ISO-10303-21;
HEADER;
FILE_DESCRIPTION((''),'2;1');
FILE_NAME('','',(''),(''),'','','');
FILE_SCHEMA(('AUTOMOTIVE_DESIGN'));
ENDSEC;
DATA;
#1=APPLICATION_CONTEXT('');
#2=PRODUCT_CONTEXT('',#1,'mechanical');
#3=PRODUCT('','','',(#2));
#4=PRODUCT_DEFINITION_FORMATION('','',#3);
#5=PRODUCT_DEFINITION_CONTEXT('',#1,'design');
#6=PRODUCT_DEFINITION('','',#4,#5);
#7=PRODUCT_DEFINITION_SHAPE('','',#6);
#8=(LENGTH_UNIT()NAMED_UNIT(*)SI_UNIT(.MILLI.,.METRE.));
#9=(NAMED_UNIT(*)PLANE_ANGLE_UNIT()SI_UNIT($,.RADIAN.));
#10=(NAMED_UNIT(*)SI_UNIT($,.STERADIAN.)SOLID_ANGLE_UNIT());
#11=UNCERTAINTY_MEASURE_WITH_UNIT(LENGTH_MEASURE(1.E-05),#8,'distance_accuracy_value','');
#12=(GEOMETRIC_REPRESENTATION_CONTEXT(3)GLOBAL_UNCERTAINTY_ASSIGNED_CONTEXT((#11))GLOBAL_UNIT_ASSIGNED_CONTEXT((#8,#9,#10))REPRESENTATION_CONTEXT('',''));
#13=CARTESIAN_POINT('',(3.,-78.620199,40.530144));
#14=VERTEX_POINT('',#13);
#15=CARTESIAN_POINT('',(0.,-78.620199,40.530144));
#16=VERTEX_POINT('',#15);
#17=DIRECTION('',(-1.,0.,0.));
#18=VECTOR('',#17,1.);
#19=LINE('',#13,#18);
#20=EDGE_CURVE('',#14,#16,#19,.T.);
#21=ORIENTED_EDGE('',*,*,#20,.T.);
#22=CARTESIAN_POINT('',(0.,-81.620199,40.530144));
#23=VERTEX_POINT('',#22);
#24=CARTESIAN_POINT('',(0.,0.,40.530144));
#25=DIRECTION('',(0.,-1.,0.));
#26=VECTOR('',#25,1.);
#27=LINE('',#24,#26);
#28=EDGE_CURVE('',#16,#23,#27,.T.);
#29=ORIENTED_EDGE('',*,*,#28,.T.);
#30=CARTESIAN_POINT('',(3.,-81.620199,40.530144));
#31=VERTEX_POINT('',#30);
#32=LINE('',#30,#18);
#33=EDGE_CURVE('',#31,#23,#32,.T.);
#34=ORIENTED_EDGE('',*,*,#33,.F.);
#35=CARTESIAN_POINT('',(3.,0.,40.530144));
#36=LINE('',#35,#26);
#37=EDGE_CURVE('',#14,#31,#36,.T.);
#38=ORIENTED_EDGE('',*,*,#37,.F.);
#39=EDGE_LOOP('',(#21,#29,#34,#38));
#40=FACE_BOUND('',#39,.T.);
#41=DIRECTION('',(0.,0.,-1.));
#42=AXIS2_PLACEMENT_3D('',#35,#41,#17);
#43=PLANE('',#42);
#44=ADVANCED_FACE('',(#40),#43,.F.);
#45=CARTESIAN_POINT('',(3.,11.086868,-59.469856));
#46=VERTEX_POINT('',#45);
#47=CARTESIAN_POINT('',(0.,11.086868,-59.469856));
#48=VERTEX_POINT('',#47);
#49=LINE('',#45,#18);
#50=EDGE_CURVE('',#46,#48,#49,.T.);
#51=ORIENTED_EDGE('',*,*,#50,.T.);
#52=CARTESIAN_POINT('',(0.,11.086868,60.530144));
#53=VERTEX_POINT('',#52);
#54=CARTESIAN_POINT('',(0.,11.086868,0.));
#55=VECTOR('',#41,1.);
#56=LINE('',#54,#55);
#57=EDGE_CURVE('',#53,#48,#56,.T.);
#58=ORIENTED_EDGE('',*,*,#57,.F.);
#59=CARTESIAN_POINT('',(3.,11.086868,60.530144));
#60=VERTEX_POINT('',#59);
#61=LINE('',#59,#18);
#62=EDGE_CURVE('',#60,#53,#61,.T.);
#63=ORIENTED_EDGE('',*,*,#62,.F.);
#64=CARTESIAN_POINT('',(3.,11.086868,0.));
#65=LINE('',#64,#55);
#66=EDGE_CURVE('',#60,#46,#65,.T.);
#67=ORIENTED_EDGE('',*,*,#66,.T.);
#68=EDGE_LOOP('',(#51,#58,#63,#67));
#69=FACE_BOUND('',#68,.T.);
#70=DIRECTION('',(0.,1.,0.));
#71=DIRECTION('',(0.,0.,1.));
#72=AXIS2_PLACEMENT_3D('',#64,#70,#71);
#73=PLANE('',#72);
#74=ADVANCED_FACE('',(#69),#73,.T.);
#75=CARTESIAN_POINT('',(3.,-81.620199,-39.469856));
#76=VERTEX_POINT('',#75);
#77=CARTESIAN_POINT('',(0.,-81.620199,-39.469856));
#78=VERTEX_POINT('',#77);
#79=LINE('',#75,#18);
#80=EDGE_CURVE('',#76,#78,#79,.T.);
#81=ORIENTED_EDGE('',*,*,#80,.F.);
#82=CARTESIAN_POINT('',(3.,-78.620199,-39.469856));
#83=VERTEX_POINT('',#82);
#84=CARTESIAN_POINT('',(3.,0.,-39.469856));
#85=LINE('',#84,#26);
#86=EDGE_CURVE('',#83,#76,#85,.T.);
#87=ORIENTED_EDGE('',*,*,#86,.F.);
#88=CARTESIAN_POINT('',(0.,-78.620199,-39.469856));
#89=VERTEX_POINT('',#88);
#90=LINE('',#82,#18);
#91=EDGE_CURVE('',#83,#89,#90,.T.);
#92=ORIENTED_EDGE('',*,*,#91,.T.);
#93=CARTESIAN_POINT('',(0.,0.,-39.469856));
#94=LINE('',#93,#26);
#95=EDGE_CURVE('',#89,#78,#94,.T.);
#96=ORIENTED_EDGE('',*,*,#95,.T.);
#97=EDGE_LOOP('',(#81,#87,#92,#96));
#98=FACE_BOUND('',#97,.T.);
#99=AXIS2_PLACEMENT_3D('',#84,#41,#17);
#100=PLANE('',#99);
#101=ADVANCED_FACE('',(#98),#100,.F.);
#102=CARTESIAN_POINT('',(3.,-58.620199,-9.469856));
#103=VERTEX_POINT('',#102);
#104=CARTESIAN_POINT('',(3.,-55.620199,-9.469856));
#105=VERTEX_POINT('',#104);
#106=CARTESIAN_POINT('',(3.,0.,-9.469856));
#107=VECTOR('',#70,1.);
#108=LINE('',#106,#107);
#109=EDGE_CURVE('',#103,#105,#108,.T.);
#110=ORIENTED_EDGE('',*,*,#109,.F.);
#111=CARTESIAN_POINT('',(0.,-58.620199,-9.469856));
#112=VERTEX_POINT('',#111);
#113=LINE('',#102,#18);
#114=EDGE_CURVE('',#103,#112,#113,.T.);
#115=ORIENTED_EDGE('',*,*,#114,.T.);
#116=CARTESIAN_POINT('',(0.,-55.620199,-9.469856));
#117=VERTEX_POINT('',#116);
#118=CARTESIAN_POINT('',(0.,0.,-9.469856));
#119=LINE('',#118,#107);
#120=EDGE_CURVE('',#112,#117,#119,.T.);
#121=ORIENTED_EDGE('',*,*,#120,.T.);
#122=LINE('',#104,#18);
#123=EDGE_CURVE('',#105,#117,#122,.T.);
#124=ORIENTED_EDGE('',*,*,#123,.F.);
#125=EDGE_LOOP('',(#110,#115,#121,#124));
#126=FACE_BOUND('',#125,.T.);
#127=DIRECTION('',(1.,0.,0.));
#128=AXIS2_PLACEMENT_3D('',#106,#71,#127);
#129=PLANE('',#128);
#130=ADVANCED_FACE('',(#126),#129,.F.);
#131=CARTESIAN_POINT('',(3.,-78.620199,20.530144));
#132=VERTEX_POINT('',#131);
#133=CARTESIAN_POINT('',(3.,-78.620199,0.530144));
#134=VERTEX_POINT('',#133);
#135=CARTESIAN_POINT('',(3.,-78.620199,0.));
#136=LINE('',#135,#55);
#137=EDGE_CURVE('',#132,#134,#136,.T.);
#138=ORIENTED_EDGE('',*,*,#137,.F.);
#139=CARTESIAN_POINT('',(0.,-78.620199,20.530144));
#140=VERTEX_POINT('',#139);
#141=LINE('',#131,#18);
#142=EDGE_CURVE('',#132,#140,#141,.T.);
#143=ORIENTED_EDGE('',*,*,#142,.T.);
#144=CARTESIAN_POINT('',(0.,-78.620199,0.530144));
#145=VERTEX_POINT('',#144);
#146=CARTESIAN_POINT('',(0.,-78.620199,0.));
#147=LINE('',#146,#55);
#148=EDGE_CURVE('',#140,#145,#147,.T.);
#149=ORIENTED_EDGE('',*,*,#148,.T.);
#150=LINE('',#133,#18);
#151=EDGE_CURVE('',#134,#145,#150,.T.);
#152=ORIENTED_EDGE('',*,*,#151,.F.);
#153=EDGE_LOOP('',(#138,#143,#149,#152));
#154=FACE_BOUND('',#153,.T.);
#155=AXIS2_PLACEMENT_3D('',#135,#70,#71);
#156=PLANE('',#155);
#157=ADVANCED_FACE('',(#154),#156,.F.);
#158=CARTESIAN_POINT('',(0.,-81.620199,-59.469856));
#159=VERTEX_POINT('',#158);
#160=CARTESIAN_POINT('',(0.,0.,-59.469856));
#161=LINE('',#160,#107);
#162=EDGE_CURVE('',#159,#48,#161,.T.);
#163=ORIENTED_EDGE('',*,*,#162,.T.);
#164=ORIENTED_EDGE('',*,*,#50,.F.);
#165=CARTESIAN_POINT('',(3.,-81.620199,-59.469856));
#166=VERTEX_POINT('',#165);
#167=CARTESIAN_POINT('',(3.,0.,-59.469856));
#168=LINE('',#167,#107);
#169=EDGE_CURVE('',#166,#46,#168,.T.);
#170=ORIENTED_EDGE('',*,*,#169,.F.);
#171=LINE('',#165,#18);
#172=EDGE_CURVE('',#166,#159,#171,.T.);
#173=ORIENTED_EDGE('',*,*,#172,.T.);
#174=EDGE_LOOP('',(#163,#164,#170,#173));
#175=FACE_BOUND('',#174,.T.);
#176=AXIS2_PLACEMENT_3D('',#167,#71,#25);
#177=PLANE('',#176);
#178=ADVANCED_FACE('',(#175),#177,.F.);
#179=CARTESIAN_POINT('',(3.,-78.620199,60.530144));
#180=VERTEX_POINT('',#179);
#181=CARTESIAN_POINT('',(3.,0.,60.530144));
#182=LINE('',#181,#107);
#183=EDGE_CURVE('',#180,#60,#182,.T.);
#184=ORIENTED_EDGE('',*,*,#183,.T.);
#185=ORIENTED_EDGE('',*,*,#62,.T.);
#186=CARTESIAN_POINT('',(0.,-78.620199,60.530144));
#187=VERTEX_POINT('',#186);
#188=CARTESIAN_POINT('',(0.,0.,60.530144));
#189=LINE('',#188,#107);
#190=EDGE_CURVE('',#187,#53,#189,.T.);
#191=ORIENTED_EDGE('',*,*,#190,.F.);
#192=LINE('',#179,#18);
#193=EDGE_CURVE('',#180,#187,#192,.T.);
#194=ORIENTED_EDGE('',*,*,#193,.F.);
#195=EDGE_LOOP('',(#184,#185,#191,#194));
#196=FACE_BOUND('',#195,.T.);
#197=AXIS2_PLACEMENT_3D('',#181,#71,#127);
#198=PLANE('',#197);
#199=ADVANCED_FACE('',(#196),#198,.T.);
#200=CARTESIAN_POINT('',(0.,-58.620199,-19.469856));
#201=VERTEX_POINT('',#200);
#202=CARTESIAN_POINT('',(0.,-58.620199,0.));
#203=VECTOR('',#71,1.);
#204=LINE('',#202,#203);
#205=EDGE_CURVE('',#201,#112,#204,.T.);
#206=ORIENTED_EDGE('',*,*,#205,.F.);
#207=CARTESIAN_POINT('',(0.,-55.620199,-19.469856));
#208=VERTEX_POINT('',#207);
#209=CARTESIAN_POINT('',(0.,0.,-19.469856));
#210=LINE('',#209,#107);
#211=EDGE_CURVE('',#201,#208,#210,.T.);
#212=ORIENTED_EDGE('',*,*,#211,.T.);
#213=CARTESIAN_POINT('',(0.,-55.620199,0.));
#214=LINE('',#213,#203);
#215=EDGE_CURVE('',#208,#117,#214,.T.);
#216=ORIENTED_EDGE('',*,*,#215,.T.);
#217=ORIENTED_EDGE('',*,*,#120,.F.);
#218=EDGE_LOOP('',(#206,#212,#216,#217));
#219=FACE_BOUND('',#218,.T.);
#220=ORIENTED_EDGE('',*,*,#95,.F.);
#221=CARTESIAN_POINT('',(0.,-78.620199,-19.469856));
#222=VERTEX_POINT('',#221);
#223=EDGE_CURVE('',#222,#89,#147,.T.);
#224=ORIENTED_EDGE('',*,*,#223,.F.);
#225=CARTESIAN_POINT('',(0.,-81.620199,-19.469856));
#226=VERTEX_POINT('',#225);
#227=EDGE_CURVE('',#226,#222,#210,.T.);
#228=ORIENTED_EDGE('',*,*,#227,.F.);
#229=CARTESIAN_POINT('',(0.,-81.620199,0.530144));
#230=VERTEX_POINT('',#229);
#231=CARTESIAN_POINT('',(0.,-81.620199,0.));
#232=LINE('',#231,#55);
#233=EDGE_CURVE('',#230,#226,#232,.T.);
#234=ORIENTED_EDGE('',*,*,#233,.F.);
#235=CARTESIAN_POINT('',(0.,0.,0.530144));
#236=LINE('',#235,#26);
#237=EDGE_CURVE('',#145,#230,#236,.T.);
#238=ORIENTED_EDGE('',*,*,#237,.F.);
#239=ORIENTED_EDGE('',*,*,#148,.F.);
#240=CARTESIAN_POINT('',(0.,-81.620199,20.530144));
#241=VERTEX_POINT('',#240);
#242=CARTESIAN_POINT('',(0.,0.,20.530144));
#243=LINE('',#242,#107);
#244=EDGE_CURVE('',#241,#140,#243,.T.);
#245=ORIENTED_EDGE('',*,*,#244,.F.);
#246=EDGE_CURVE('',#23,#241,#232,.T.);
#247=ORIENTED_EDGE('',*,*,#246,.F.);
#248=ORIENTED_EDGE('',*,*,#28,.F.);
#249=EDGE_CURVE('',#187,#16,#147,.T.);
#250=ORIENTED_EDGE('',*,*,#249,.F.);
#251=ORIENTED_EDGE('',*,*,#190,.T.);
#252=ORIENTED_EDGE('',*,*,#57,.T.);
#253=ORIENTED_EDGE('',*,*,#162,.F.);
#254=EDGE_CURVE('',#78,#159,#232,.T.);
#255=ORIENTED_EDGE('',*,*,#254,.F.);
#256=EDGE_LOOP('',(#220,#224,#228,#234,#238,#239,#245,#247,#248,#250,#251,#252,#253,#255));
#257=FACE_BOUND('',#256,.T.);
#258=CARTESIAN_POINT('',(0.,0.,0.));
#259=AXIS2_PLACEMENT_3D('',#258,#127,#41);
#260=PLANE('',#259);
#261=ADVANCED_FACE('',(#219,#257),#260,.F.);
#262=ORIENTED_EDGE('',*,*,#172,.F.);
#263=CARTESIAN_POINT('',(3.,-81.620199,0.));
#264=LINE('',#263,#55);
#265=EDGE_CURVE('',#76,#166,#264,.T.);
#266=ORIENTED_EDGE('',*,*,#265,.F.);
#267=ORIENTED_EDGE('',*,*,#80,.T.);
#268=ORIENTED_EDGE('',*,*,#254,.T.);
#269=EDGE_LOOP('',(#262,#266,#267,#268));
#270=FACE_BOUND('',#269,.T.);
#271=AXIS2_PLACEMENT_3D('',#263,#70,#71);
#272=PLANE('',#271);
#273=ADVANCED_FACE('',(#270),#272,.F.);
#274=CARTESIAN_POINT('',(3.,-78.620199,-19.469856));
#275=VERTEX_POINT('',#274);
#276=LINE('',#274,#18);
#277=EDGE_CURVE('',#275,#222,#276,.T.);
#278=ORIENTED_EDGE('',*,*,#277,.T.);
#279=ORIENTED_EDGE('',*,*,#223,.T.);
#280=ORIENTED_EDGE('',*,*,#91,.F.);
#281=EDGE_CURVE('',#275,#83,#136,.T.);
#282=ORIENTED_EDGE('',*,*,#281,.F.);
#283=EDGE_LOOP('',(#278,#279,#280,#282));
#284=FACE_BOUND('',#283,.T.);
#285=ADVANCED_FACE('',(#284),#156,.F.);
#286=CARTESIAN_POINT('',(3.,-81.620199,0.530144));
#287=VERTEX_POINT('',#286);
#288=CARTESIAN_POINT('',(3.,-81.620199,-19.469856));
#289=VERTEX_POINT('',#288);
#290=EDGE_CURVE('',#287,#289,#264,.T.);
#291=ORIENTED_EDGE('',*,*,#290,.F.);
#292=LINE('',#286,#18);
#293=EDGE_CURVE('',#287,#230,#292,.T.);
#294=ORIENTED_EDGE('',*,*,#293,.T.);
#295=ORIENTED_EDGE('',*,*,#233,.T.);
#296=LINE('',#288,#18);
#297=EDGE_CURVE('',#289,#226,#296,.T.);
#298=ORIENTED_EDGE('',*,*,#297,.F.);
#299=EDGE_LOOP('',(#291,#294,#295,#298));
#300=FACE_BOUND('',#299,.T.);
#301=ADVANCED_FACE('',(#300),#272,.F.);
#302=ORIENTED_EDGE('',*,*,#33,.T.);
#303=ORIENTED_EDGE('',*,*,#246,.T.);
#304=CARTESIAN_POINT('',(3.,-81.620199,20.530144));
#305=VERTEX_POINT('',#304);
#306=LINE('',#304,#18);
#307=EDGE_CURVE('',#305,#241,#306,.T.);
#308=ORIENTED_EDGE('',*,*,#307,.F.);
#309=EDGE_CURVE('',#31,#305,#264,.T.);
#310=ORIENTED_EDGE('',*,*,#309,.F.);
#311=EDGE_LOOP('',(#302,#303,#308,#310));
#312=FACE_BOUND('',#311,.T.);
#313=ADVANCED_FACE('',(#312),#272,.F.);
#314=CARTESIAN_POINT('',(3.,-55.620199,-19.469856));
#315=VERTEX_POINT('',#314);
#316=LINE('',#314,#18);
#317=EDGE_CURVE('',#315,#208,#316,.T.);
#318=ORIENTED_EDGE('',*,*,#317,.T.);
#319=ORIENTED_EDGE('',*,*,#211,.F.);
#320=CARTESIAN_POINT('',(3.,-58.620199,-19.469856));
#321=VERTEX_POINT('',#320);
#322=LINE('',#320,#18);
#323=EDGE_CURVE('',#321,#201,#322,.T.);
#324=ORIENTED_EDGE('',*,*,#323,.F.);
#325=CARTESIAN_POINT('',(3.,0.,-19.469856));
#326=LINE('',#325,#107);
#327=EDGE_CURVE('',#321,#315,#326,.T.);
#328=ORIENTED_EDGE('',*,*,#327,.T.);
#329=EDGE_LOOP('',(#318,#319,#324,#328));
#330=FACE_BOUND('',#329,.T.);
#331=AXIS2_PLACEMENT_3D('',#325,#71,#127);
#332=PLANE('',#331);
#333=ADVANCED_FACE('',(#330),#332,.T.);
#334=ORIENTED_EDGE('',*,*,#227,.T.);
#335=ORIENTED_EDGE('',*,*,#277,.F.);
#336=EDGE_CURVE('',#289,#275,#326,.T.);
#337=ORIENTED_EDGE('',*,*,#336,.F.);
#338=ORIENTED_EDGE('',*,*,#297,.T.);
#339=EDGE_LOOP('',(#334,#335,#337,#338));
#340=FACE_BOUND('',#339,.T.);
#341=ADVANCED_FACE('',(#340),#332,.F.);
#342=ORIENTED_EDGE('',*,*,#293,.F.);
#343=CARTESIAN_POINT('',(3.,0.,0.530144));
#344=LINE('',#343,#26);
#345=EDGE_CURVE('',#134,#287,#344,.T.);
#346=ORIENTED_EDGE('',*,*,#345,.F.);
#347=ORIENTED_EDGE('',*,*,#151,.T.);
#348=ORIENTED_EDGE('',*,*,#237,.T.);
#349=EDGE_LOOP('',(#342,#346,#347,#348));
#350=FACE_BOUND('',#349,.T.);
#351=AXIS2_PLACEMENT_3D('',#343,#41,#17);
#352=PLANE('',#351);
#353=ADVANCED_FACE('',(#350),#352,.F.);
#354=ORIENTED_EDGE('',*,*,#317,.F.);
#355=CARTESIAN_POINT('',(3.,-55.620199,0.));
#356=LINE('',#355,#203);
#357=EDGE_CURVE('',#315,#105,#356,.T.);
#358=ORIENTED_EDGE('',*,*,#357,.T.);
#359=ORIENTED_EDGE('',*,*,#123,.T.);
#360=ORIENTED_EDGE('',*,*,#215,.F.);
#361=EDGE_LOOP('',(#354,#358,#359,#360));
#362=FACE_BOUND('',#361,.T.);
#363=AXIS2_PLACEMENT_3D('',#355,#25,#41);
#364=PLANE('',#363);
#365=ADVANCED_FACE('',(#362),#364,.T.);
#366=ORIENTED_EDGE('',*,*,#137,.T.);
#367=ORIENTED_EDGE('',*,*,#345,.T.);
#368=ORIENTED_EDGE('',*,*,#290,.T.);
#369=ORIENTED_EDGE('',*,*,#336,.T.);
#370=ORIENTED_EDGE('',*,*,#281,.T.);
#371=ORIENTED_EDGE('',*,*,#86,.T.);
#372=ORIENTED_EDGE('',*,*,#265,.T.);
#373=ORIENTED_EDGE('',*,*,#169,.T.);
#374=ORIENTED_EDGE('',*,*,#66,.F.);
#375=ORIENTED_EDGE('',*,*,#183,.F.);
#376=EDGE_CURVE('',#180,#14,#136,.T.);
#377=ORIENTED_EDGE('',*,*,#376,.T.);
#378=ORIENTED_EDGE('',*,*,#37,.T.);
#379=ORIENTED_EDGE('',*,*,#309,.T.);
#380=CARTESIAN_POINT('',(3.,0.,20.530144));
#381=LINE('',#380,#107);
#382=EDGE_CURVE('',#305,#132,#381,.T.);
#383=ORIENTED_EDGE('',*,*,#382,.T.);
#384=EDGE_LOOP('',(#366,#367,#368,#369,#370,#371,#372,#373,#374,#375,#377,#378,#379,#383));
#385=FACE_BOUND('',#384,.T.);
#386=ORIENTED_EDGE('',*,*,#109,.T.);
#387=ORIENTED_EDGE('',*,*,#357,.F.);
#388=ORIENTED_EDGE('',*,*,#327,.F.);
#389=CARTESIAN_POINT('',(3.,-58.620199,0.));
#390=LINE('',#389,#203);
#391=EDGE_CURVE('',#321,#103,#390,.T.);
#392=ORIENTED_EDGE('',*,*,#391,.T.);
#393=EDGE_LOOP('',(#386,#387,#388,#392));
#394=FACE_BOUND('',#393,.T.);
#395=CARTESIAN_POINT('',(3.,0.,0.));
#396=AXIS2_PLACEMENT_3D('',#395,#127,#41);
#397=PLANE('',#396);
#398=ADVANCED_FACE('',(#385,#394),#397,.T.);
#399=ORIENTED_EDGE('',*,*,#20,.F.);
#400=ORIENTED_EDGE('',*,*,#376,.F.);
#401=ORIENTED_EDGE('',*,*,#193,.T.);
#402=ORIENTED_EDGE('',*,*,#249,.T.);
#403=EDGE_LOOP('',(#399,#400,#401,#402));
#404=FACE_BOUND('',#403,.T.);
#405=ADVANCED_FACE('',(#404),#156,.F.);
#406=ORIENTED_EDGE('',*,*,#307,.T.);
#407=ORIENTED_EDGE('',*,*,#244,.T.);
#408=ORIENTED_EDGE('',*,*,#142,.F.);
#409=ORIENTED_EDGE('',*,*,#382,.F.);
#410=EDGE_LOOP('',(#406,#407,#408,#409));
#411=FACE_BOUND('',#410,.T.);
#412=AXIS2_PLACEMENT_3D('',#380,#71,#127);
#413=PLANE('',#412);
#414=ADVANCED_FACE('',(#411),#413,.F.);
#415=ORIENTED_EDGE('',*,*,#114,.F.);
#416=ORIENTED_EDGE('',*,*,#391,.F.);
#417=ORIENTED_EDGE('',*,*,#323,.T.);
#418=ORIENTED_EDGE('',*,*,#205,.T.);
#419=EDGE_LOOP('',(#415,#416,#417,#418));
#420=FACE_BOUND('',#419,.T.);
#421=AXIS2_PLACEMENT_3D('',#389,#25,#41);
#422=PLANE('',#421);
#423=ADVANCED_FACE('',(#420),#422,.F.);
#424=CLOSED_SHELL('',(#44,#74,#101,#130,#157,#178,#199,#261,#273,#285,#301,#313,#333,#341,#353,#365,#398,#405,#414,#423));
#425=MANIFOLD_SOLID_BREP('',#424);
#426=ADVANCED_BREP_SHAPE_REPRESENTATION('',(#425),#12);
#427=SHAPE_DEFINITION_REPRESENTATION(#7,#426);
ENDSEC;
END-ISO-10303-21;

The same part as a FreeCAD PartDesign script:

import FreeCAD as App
import Part
import Sketcher
from FreeCAD import Vector


def add_polygon(sketch, points):
    """Adds a closed chain of lines whose ends are joined by coincident constraints."""
    first, n = sketch.GeometryCount, len(points)
    for a, b in zip(points, points[1:] + points[:1]):
        sketch.addGeometry(Part.LineSegment(App.Vector(*a, 0), App.Vector(*b, 0)), False)
    for i in range(n):
        sketch.addConstraint(Sketcher.Constraint("Coincident", first + i, 2, first + (i + 1) % n, 1))

doc = App.newDocument("Part")
body = doc.addObject("PartDesign::Body", "Body")

# Sketch on YZ plane
sketch1 = doc.addObject("Sketcher::SketchObject", "Sketch")
body.addObject(sketch1)
sketch1.AttachmentSupport = (doc.YZ_Plane, [""])
sketch1.MapMode = "FlatFace"
add_polygon(sketch1, [(-78.6, 60.5), (-78.6, 40.5), (-81.6, 40.5), (-81.6, 20.5), (-78.6, 20.5), (-78.6, 0.5), (-81.6, 0.5), (-81.6, -19.5), (-78.6, -19.5), (-78.6, -39.5), (-81.6, -39.5), (-81.6, -59.5), (11.1, -59.5), (11.1, 60.5)])  # lines 0-13
add_polygon(sketch1, [(-58.6, -19.5), (-58.6, -9.5), (-55.6, -9.5), (-55.6, -19.5)])  # lines 14-17
sketch1.addConstraint([
    Sketcher.Constraint("Vertical", 0),
    Sketcher.Constraint("Horizontal", 1),
    Sketcher.Constraint("Vertical", 2),
    Sketcher.Constraint("Horizontal", 3),
    Sketcher.Constraint("Vertical", 4),
    Sketcher.Constraint("Horizontal", 5),
    Sketcher.Constraint("Vertical", 6),
    Sketcher.Constraint("Horizontal", 7),
    Sketcher.Constraint("Vertical", 8),
    Sketcher.Constraint("Horizontal", 9),
    Sketcher.Constraint("Vertical", 10),
    Sketcher.Constraint("Horizontal", 11),
    Sketcher.Constraint("Vertical", 12),
    Sketcher.Constraint("Horizontal", 13),
    Sketcher.Constraint("Vertical", 14),
    Sketcher.Constraint("Horizontal", 15),
    Sketcher.Constraint("Vertical", 16),
    Sketcher.Constraint("Horizontal", 17),
    Sketcher.Constraint("Horizontal", 7, 2, 16, 2),
    Sketcher.Constraint("Vertical", 0, 2, 3, 2),
    Sketcher.Constraint("Vertical", 2, 2, 5, 2),
    Sketcher.Constraint("Vertical", 4, 2, 7, 2),
    Sketcher.Constraint("Vertical", 6, 2, 9, 2),
    Sketcher.Constraint("Equal", 9, 15),
    Sketcher.Constraint("Equal", 0, 2),
    Sketcher.Constraint("Equal", 2, 4),
    Sketcher.Constraint("Equal", 4, 6),
    Sketcher.Constraint("Equal", 6, 8),
    Sketcher.Constraint("Equal", 8, 10),
    Sketcher.Constraint("DistanceX", 1, 2, 1, 1, 3.0),
    Sketcher.Constraint("DistanceY", 0, 2, 0, 1, 20.0),
    Sketcher.Constraint("DistanceY", 14, 1, 14, 2, 10.0),
    Sketcher.Constraint("DistanceX", 4, 2, 14, 2, 20.0),
    Sketcher.Constraint("DistanceX", 0, 2, -1, 1, 78.620199),
    Sketcher.Constraint("DistanceX", 11, 1, 11, 2, 92.707067),
    Sketcher.Constraint("DistanceY", -1, 1, 0, 2, 40.530144),
])
pad1 = doc.addObject("PartDesign::Pad", "Pad")
body.addObject(pad1)
pad1.Profile = sketch1
pad1.Length = 3

doc.recompute()
